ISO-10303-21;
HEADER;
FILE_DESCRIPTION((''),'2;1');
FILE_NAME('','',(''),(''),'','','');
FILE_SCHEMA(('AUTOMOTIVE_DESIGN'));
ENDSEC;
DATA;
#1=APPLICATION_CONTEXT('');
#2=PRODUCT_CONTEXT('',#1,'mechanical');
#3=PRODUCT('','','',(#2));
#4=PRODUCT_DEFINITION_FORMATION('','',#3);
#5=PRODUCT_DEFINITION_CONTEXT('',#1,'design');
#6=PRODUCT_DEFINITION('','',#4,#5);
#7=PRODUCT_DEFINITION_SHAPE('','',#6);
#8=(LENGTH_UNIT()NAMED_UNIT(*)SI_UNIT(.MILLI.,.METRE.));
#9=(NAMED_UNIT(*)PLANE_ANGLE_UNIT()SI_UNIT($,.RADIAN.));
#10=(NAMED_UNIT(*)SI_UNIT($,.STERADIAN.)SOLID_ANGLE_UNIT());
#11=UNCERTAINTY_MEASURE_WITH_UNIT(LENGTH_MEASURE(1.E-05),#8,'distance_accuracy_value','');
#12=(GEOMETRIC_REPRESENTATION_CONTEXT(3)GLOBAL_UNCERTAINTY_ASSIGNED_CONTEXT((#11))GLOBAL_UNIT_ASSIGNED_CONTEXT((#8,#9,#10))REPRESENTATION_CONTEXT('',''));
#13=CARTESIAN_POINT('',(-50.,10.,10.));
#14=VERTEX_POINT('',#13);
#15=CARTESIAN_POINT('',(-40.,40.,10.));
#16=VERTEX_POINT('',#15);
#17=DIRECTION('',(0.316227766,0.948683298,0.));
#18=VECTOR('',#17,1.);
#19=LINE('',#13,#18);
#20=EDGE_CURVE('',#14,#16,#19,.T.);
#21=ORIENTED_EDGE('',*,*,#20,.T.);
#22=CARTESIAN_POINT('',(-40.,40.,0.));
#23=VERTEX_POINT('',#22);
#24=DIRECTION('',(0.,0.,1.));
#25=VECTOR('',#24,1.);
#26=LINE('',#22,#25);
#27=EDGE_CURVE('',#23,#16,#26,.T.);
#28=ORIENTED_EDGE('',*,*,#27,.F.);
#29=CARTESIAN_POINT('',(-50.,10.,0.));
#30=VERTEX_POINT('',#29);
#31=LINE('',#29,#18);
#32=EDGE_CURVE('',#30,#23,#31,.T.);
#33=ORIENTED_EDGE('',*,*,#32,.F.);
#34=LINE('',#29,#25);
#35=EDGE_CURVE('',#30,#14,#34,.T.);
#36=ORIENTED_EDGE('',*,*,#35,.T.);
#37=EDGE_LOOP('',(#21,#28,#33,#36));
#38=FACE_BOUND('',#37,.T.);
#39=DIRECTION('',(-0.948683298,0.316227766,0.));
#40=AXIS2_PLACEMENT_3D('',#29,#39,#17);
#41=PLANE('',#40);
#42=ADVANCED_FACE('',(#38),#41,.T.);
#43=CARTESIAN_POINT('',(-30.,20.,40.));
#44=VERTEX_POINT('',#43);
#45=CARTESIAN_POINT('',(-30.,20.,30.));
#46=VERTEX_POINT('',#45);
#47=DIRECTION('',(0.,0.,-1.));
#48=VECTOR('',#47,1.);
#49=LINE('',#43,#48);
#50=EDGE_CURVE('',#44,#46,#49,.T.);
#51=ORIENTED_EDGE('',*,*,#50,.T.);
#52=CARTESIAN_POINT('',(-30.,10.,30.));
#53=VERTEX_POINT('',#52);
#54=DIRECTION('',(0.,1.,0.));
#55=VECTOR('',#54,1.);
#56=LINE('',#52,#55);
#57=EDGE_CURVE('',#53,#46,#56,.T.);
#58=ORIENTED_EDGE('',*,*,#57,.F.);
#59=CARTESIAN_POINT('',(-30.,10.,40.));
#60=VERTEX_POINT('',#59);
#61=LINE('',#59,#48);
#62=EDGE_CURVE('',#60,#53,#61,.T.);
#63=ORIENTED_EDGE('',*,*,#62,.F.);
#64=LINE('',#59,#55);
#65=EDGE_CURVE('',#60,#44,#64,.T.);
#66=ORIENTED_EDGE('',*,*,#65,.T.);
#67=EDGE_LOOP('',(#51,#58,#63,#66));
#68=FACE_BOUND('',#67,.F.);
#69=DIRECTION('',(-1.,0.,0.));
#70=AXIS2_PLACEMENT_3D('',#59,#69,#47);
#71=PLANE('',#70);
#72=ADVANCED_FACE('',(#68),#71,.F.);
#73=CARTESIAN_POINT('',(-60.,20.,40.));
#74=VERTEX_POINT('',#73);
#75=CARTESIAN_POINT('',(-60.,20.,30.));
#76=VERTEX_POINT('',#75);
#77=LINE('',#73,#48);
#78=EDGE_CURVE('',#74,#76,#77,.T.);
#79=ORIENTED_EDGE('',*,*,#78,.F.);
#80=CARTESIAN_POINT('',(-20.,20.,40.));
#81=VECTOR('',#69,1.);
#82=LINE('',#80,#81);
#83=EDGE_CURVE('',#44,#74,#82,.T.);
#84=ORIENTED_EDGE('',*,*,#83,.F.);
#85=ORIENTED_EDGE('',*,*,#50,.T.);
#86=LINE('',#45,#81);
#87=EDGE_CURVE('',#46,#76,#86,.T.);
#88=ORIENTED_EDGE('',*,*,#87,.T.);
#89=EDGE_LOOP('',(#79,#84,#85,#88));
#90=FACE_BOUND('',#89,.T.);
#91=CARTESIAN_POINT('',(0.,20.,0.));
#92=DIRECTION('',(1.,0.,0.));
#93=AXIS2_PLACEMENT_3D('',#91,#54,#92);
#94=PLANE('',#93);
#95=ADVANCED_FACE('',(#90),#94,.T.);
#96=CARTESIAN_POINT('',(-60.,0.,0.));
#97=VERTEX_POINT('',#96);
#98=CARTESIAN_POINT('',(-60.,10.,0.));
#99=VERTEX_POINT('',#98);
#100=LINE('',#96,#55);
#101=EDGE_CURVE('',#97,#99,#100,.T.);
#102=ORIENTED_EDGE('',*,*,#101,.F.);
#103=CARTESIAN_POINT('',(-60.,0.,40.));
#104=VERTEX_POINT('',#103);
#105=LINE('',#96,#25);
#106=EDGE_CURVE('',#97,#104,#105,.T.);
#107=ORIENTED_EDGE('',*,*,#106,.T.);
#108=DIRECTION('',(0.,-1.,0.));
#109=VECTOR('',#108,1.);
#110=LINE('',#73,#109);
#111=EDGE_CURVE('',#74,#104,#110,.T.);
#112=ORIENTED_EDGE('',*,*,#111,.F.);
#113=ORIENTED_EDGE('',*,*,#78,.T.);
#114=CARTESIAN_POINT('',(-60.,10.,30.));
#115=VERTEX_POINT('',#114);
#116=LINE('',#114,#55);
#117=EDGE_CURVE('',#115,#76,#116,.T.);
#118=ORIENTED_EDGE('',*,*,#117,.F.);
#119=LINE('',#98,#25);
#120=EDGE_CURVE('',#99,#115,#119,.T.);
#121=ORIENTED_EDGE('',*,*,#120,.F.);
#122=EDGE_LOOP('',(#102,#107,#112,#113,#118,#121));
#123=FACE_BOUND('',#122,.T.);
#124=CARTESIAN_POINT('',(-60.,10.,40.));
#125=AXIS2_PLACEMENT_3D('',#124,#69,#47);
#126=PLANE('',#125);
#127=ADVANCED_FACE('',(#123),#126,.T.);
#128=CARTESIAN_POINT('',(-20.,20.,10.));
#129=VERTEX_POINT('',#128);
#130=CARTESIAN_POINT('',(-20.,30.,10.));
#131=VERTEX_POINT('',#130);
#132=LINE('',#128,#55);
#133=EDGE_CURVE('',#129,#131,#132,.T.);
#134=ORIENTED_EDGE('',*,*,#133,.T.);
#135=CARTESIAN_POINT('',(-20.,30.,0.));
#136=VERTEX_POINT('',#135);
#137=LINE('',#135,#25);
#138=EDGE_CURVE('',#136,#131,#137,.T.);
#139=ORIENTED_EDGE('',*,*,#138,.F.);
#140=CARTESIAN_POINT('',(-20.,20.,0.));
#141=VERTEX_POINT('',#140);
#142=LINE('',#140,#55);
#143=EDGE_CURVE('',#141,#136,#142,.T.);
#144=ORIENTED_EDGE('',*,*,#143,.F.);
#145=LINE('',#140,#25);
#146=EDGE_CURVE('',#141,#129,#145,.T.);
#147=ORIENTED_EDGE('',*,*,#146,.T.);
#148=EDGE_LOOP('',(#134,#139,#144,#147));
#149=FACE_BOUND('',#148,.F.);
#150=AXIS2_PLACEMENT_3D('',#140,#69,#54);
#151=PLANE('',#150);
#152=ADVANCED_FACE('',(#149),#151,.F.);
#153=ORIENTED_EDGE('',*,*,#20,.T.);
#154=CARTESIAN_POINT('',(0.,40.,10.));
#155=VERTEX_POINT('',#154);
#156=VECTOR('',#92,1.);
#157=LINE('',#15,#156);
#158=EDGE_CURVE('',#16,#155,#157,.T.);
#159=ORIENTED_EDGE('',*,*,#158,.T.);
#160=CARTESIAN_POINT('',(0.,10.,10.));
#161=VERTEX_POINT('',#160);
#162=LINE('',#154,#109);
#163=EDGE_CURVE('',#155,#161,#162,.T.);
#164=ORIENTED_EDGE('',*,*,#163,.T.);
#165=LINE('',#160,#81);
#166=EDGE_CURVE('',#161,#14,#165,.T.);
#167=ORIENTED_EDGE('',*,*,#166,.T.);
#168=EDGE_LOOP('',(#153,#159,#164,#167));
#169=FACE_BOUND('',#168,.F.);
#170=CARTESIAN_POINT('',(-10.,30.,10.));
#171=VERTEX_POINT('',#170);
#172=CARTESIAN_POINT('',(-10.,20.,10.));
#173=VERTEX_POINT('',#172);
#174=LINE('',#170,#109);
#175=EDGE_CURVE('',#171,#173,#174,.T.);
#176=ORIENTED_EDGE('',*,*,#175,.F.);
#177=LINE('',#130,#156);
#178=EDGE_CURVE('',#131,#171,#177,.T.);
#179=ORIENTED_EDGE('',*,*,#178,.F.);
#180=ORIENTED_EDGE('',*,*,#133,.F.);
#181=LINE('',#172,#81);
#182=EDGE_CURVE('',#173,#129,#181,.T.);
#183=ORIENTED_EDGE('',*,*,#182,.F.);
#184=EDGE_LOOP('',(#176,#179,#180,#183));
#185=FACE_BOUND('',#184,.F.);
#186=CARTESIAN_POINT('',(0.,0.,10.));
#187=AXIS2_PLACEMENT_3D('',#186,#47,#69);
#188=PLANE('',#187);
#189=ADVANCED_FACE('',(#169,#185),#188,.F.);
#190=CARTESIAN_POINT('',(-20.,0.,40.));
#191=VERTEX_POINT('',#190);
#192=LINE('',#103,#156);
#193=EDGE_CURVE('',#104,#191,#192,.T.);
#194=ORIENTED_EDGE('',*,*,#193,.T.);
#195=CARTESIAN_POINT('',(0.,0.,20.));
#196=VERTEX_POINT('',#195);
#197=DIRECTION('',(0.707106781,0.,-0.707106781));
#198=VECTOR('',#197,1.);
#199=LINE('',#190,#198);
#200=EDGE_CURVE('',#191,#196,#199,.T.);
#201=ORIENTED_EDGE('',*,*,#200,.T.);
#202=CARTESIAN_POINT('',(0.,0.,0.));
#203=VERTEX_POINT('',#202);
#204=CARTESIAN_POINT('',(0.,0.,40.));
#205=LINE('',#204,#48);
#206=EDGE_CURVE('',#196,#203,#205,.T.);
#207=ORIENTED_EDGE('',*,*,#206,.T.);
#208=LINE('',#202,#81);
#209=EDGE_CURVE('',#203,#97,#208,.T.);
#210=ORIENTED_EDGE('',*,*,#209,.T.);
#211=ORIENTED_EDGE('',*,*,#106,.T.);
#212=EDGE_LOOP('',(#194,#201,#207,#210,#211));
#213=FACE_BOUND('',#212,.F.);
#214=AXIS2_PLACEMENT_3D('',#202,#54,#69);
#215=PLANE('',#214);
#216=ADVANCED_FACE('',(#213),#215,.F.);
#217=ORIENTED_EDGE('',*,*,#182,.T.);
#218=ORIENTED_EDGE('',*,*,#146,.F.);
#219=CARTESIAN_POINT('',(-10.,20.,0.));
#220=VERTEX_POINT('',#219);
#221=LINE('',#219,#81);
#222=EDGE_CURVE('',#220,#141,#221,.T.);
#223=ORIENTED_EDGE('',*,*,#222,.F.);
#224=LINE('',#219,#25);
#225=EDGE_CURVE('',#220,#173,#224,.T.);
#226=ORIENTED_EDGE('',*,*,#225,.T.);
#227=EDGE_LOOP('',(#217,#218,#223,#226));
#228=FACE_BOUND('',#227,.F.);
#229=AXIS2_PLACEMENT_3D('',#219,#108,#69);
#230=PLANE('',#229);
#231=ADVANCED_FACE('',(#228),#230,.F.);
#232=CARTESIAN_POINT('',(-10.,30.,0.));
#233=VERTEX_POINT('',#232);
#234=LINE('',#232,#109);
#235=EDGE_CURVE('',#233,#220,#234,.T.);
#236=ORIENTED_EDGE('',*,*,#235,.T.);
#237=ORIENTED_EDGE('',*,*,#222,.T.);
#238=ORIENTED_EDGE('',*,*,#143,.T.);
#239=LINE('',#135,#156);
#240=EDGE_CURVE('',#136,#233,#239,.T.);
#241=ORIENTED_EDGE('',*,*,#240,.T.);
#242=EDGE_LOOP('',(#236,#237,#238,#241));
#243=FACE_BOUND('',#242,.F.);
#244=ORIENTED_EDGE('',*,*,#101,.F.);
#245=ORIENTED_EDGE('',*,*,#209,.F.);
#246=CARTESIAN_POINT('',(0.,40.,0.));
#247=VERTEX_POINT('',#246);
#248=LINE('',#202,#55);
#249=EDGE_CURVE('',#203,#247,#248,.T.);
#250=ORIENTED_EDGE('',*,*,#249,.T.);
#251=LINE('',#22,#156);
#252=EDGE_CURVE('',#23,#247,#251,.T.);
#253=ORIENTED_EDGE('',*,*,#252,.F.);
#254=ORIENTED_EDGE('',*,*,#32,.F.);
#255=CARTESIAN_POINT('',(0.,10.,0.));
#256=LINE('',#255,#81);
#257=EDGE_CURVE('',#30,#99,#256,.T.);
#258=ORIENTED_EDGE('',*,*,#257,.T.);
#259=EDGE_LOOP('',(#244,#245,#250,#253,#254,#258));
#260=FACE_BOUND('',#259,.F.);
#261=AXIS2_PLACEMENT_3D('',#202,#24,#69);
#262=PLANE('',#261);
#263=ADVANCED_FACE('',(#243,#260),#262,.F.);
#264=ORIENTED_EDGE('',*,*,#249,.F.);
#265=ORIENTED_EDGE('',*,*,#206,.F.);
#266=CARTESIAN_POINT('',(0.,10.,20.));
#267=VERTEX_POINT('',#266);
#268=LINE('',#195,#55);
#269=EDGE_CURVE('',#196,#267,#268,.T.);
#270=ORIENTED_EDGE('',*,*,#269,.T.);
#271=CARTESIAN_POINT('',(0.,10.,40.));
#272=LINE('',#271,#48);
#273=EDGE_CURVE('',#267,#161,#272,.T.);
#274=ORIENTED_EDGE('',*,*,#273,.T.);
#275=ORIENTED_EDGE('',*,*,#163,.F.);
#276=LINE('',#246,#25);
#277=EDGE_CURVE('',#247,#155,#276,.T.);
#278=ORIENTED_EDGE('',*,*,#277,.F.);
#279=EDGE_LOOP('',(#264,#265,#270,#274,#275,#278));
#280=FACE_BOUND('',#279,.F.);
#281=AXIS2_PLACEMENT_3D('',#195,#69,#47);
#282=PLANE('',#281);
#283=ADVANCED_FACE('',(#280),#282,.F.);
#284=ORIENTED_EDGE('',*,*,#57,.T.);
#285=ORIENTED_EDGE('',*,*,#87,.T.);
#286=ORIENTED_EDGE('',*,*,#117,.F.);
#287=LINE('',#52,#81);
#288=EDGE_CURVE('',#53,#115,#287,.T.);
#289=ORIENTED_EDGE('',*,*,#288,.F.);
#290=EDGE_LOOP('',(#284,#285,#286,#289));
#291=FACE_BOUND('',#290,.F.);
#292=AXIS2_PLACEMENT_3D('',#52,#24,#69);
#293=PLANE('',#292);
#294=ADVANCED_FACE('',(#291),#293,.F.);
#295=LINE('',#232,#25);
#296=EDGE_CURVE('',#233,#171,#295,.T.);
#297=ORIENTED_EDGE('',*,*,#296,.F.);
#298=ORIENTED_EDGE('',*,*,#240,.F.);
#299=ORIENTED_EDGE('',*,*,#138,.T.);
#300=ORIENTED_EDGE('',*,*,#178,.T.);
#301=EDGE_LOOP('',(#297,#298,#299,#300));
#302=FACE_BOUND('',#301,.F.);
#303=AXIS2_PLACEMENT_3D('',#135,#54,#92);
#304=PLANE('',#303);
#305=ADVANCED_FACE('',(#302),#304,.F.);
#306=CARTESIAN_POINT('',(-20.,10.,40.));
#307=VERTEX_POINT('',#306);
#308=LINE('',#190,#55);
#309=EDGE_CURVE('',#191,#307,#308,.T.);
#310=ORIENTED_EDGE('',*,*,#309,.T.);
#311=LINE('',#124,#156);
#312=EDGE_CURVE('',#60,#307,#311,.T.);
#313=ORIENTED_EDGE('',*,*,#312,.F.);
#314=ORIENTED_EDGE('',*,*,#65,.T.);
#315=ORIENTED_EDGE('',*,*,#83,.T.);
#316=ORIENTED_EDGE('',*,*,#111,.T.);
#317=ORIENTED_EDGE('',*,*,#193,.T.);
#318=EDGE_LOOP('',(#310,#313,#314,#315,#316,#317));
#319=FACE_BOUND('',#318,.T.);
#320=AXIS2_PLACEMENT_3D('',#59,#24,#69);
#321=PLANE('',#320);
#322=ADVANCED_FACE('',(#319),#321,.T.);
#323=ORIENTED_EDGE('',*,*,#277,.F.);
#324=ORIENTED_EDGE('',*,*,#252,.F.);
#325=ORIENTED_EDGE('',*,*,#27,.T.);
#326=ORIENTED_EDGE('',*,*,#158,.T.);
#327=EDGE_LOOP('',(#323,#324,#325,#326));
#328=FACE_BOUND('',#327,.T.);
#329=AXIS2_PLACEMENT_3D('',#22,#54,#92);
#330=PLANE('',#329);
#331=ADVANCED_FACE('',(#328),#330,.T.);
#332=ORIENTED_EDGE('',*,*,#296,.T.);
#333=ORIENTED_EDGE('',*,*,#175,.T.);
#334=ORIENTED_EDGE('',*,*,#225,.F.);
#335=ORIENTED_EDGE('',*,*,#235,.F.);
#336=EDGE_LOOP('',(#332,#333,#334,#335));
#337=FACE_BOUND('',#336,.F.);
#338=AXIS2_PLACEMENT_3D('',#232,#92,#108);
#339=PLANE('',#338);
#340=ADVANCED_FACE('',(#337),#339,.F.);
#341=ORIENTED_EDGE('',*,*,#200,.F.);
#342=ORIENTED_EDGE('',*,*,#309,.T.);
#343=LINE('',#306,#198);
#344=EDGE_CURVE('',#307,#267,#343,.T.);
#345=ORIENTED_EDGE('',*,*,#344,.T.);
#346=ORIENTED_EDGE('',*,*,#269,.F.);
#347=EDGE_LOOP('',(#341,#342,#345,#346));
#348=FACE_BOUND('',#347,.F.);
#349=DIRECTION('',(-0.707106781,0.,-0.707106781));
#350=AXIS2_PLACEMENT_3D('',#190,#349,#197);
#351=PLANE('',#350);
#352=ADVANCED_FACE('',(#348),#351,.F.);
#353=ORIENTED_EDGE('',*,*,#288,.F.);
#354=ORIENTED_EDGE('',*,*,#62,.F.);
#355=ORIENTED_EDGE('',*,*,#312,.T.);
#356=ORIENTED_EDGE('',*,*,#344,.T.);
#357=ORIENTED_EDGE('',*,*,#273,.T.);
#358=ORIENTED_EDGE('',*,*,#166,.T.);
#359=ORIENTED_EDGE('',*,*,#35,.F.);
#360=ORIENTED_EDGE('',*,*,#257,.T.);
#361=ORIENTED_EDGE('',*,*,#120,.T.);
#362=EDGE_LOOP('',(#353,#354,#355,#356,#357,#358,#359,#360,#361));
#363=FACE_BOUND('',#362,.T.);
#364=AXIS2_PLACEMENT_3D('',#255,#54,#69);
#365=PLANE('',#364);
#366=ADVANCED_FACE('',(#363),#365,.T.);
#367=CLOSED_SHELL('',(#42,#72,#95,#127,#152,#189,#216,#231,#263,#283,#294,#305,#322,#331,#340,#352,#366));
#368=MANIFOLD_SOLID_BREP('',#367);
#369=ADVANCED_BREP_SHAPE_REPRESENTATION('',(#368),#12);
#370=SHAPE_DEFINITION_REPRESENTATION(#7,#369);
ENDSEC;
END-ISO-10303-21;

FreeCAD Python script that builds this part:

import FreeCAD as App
import Part
import Sketcher
from FreeCAD import Vector
Q = App.Units.Quantity


def add_polygon(sketch, points):
    """Adds a closed chain of lines whose ends are joined by coincident constraints."""
    first, n = sketch.GeometryCount, len(points)
    for a, b in zip(points, points[1:] + points[:1]):
        sketch.addGeometry(Part.LineSegment(App.Vector(*a, 0), App.Vector(*b, 0)), False)
    for i in range(n):
        sketch.addConstraint(Sketcher.Constraint("Coincident", first + i, 2, first + (i + 1) % n, 1))

doc = App.newDocument("Part")
body = doc.addObject("PartDesign::Body", "Body")

# Sketch on XZ plane
sketch1 = doc.addObject("Sketcher::SketchObject", "Sketch")
body.addObject(sketch1)
sketch1.AttachmentSupport = (doc.XZ_Plane, [""])
sketch1.MapMode = "FlatFace"
add_polygon(sketch1, [(0, 20), (0, 0), (-60, 0), (-60, 40), (-20, 40)])  # lines 0-4
sketch1.addConstraint(Sketcher.Constraint("Vertical", 0))
sketch1.addConstraint(Sketcher.Constraint("Horizontal", 1))
sketch1.addConstraint(Sketcher.Constraint("Vertical", 2))
sketch1.addConstraint(Sketcher.Constraint("Horizontal", 3))
sketch1.addConstraint(Sketcher.Constraint("Coincident", 0, 2, -1, 1))
sketch1.addConstraint(Sketcher.Constraint("Equal", 3, 2))
sketch1.addConstraint(Sketcher.Constraint("DistanceX", 1, 2, 1, 1, Q("2.3622 in")))
sketch1.addConstraint(Sketcher.Constraint("DistanceX", 3, 1, 3, 2, Q("1.5748 in")))
sketch1.addConstraint(Sketcher.Constraint("DistanceY", 0, 2, 0, 1, Q("0.7874 in")))
pad1 = doc.addObject("PartDesign::Pad", "Pad")
body.addObject(pad1)
pad1.Profile = sketch1
pad1.Length = Q("0.3937008 in")
pad1.Reversed = True

# Sketch on XY plane
sketch2 = doc.addObject("Sketcher::SketchObject", "Sketch001")
body.addObject(sketch2)
sketch2.AttachmentSupport = (doc.XY_Plane, [""])
sketch2.MapMode = "FlatFace"
add_polygon(sketch2, [(0, 40), (0, 10), (-50, 10), (-40, 40)])  # lines 0-3
add_polygon(sketch2, [(-10, 30), (-20, 30), (-20, 20), (-10, 20)])  # lines 4-7
sketch2.addConstraint(Sketcher.Constraint("Vertical", 0))
sketch2.addConstraint(Sketcher.Constraint("Horizontal", 1))
sketch2.addConstraint(Sketcher.Constraint("Horizontal", 3))
sketch2.addConstraint(Sketcher.Constraint("Horizontal", 4))
sketch2.addConstraint(Sketcher.Constraint("Vertical", 5))
sketch2.addConstraint(Sketcher.Constraint("Horizontal", 6))
sketch2.addConstraint(Sketcher.Constraint("Vertical", 7))
sketch2.addConstraint(Sketcher.Constraint("PointOnObject", 0, 2, -2))
sketch2.addConstraint(Sketcher.Constraint("Equal", 6, 5))
sketch2.addConstraint(Sketcher.Constraint("DistanceX", 3, 1, 3, 2, Q("1.5748 in")))
sketch2.addConstraint(Sketcher.Constraint("DistanceX", 4, 2, 4, 1, Q("0.3937 in")))
sketch2.addConstraint(Sketcher.Constraint("DistanceY", -1, 1, 0, 2, Q("0.3937 in")))
sketch2.addConstraint(Sketcher.Constraint("DistanceY", -1, 1, 2, 2, Q("1.5748 in")))
sketch2.addConstraint(Sketcher.Constraint("DistanceX", 6, 2, -1, 1, Q("0.3937 in")))
sketch2.addConstraint(Sketcher.Constraint("DistanceX", 1, 2, 2, 2, Q("0.3937 in")))
sketch2.addConstraint(Sketcher.Constraint("DistanceY", 4, 2, 2, 2, Q("0.3937 in")))
pad2 = doc.addObject("PartDesign::Pad", "Pad001")
body.addObject(pad2)
pad2.Profile = sketch2
pad2.Length = Q("0.3937008 in")

# Sketch on XZ plane
sketch3 = doc.addObject("Sketcher::SketchObject", "Sketch002")
body.addObject(sketch3)
sketch3.AttachmentSupport = (doc.XZ_Plane, [""])
sketch3.MapMode = "FlatFace"
sketch3.AttachmentOffset = App.Placement(Vector(0, 0, -0.3937008 * 25.4), App.Rotation())
add_polygon(sketch3, [(-60, 40), (-30, 40), (-30, 30), (-60, 30)])  # lines 0-3
sketch3.addConstraint(Sketcher.Constraint("Horizontal", 0))
sketch3.addConstraint(Sketcher.Constraint("Vertical", 1))
sketch3.addConstraint(Sketcher.Constraint("Horizontal", 2))
sketch3.addConstraint(Sketcher.Constraint("Vertical", 3))
sketch3.addConstraint(Sketcher.Constraint("DistanceX", 0, 1, 0, 2, Q("1.1811 in")))
sketch3.addConstraint(Sketcher.Constraint("DistanceY", 1, 2, 1, 1, Q("0.3937 in")))
sketch3.addConstraint(Sketcher.Constraint("DistanceX", 0, 2, -1, 1, Q("1.1811 in")))
sketch3.addConstraint(Sketcher.Constraint("DistanceY", -1, 1, 1, 2, Q("1.1811 in")))
pad3 = doc.addObject("PartDesign::Pad", "Pad002")
body.addObject(pad3)
pad3.Profile = sketch3
pad3.Length = Q("0.3937008 in")
pad3.Reversed = True

doc.recompute()
